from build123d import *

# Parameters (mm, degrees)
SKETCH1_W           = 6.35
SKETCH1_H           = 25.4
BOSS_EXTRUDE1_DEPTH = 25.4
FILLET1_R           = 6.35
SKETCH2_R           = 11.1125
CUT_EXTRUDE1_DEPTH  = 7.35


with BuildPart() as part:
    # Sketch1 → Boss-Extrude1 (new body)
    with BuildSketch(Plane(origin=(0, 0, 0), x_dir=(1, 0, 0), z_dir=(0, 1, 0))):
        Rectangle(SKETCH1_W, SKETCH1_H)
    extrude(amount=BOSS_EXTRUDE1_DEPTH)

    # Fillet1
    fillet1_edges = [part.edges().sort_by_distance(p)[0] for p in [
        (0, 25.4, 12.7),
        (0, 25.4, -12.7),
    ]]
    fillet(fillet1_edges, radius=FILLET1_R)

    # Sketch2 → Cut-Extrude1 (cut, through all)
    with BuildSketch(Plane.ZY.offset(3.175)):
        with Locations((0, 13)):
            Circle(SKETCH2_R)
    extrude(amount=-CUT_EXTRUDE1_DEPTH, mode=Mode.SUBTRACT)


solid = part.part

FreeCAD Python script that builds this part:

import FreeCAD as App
import Part
import Sketcher

V = App.Vector
Q = App.Units.Quantity


def edges_at(feature, points):
    """Names of the edges that pass closest to the given points."""
    edges = feature.Shape.Edges
    near = lambda p: min(range(len(edges)), key=lambda i: edges[i].distToShape(Part.Vertex(*p))[0])
    return sorted({f"Edge{near(p) + 1}" for p in points})

doc = App.newDocument("Part")
params = doc.addObject("Spreadsheet::Sheet", "Params")
for row, (alias, value) in enumerate([
    ("sketch1_height", "1 in"),
    ("sketch1_width", "0.25 in"),
    ("pad1_length", "1 in"),
    ("fillet_radius", "0.25 in"),
    ("sketch2_diameter", "0.875 in"),
], start=1):
    params.set(f"A{row}", alias)
    params.set(f"B{row}", "=" + value)
    params.setAlias(f"B{row}", alias)

body = doc.addObject("PartDesign::Body", "Body")

# Sketch on XZ plane
sketch1 = body.newObject("Sketcher::SketchObject", "Sketch")
sketch1.AttachmentSupport = (doc.getObject("XZ_Plane"), [""])
sketch1.MapMode = "FlatFace"
sketch1.addGeometry(Part.LineSegment(V(-3, -13, 0), V(-3, 13, 0)), False)
sketch1.addGeometry(Part.LineSegment(V(-3, 13, 0), V(3, 13, 0)), False)
sketch1.addGeometry(Part.LineSegment(V(3, 13, 0), V(3, -13, 0)), False)
sketch1.addGeometry(Part.LineSegment(V(3, -13, 0), V(-3, -13, 0)), False)
sketch1.addConstraint(Sketcher.Constraint("Coincident", 0, 2, 1, 1))
sketch1.addConstraint(Sketcher.Constraint("Coincident", 1, 2, 2, 1))
sketch1.addConstraint(Sketcher.Constraint("Coincident", 2, 2, 3, 1))
sketch1.addConstraint(Sketcher.Constraint("Coincident", 3, 2, 0, 1))
sketch1.addConstraint(Sketcher.Constraint("Vertical", 0))
sketch1.addConstraint(Sketcher.Constraint("Horizontal", 1))
sketch1.addConstraint(Sketcher.Constraint("Vertical", 2))
sketch1.addConstraint(Sketcher.Constraint("Horizontal", 3))
sketch1.addConstraint(Sketcher.Constraint("Symmetric", 0, 2, 2, 2, -1, 1))
sketch1.addConstraint(Sketcher.Constraint("DistanceY", 0, 1, 0, 2, Q("1 in")))
sketch1.addConstraint(Sketcher.Constraint("DistanceX", 1, 1, 1, 2, Q("0.25 in")))
sketch1.setExpression("Constraints[9]", "Params.sketch1_height")
sketch1.setExpression("Constraints[10]", "Params.sketch1_width")
pad1 = body.newObject("PartDesign::Pad", "Pad")
pad1.Profile = sketch1
pad1.setExpression("Length", "Params.pad1_length")
pad1.Reversed = True
doc.recompute()

fillet = body.newObject("PartDesign::Fillet", "Fillet")
fillet.Base = (pad1, edges_at(pad1, [(0, 25.4, 12.7), (0, 25.4, -12.7)]))
fillet.setExpression("Radius", "Params.fillet_radius")

# Sketch on YZ plane
sketch2 = body.newObject("Sketcher::SketchObject", "Sketch001")
sketch2.AttachmentSupport = (doc.getObject("YZ_Plane"), [""])
sketch2.MapMode = "FlatFace"
sketch2.AttachmentOffset = App.Placement(V(0, 0, -0.125 * 25.4), App.Rotation())
sketch2.addGeometry(Part.Circle(V(13, 0, 0), V(0, 0, 1), 11), False)
sketch2.addConstraint(Sketcher.Constraint("PointOnObject", 0, 3, -1))
sketch2.addConstraint(Sketcher.Constraint("Diameter", 0, Q("0.875 in")))
sketch2.addConstraint(Sketcher.Constraint("DistanceX", -1, 1, 0, 3, Q("13 mm")))
sketch2.setExpression("Constraints[1]", "Params.sketch2_diameter")
pocket1 = body.newObject("PartDesign::Pocket", "Pocket")
pocket1.Profile = sketch2
pocket1.Type = "ThroughAll"
pocket1.Reversed = True

doc.recompute()
